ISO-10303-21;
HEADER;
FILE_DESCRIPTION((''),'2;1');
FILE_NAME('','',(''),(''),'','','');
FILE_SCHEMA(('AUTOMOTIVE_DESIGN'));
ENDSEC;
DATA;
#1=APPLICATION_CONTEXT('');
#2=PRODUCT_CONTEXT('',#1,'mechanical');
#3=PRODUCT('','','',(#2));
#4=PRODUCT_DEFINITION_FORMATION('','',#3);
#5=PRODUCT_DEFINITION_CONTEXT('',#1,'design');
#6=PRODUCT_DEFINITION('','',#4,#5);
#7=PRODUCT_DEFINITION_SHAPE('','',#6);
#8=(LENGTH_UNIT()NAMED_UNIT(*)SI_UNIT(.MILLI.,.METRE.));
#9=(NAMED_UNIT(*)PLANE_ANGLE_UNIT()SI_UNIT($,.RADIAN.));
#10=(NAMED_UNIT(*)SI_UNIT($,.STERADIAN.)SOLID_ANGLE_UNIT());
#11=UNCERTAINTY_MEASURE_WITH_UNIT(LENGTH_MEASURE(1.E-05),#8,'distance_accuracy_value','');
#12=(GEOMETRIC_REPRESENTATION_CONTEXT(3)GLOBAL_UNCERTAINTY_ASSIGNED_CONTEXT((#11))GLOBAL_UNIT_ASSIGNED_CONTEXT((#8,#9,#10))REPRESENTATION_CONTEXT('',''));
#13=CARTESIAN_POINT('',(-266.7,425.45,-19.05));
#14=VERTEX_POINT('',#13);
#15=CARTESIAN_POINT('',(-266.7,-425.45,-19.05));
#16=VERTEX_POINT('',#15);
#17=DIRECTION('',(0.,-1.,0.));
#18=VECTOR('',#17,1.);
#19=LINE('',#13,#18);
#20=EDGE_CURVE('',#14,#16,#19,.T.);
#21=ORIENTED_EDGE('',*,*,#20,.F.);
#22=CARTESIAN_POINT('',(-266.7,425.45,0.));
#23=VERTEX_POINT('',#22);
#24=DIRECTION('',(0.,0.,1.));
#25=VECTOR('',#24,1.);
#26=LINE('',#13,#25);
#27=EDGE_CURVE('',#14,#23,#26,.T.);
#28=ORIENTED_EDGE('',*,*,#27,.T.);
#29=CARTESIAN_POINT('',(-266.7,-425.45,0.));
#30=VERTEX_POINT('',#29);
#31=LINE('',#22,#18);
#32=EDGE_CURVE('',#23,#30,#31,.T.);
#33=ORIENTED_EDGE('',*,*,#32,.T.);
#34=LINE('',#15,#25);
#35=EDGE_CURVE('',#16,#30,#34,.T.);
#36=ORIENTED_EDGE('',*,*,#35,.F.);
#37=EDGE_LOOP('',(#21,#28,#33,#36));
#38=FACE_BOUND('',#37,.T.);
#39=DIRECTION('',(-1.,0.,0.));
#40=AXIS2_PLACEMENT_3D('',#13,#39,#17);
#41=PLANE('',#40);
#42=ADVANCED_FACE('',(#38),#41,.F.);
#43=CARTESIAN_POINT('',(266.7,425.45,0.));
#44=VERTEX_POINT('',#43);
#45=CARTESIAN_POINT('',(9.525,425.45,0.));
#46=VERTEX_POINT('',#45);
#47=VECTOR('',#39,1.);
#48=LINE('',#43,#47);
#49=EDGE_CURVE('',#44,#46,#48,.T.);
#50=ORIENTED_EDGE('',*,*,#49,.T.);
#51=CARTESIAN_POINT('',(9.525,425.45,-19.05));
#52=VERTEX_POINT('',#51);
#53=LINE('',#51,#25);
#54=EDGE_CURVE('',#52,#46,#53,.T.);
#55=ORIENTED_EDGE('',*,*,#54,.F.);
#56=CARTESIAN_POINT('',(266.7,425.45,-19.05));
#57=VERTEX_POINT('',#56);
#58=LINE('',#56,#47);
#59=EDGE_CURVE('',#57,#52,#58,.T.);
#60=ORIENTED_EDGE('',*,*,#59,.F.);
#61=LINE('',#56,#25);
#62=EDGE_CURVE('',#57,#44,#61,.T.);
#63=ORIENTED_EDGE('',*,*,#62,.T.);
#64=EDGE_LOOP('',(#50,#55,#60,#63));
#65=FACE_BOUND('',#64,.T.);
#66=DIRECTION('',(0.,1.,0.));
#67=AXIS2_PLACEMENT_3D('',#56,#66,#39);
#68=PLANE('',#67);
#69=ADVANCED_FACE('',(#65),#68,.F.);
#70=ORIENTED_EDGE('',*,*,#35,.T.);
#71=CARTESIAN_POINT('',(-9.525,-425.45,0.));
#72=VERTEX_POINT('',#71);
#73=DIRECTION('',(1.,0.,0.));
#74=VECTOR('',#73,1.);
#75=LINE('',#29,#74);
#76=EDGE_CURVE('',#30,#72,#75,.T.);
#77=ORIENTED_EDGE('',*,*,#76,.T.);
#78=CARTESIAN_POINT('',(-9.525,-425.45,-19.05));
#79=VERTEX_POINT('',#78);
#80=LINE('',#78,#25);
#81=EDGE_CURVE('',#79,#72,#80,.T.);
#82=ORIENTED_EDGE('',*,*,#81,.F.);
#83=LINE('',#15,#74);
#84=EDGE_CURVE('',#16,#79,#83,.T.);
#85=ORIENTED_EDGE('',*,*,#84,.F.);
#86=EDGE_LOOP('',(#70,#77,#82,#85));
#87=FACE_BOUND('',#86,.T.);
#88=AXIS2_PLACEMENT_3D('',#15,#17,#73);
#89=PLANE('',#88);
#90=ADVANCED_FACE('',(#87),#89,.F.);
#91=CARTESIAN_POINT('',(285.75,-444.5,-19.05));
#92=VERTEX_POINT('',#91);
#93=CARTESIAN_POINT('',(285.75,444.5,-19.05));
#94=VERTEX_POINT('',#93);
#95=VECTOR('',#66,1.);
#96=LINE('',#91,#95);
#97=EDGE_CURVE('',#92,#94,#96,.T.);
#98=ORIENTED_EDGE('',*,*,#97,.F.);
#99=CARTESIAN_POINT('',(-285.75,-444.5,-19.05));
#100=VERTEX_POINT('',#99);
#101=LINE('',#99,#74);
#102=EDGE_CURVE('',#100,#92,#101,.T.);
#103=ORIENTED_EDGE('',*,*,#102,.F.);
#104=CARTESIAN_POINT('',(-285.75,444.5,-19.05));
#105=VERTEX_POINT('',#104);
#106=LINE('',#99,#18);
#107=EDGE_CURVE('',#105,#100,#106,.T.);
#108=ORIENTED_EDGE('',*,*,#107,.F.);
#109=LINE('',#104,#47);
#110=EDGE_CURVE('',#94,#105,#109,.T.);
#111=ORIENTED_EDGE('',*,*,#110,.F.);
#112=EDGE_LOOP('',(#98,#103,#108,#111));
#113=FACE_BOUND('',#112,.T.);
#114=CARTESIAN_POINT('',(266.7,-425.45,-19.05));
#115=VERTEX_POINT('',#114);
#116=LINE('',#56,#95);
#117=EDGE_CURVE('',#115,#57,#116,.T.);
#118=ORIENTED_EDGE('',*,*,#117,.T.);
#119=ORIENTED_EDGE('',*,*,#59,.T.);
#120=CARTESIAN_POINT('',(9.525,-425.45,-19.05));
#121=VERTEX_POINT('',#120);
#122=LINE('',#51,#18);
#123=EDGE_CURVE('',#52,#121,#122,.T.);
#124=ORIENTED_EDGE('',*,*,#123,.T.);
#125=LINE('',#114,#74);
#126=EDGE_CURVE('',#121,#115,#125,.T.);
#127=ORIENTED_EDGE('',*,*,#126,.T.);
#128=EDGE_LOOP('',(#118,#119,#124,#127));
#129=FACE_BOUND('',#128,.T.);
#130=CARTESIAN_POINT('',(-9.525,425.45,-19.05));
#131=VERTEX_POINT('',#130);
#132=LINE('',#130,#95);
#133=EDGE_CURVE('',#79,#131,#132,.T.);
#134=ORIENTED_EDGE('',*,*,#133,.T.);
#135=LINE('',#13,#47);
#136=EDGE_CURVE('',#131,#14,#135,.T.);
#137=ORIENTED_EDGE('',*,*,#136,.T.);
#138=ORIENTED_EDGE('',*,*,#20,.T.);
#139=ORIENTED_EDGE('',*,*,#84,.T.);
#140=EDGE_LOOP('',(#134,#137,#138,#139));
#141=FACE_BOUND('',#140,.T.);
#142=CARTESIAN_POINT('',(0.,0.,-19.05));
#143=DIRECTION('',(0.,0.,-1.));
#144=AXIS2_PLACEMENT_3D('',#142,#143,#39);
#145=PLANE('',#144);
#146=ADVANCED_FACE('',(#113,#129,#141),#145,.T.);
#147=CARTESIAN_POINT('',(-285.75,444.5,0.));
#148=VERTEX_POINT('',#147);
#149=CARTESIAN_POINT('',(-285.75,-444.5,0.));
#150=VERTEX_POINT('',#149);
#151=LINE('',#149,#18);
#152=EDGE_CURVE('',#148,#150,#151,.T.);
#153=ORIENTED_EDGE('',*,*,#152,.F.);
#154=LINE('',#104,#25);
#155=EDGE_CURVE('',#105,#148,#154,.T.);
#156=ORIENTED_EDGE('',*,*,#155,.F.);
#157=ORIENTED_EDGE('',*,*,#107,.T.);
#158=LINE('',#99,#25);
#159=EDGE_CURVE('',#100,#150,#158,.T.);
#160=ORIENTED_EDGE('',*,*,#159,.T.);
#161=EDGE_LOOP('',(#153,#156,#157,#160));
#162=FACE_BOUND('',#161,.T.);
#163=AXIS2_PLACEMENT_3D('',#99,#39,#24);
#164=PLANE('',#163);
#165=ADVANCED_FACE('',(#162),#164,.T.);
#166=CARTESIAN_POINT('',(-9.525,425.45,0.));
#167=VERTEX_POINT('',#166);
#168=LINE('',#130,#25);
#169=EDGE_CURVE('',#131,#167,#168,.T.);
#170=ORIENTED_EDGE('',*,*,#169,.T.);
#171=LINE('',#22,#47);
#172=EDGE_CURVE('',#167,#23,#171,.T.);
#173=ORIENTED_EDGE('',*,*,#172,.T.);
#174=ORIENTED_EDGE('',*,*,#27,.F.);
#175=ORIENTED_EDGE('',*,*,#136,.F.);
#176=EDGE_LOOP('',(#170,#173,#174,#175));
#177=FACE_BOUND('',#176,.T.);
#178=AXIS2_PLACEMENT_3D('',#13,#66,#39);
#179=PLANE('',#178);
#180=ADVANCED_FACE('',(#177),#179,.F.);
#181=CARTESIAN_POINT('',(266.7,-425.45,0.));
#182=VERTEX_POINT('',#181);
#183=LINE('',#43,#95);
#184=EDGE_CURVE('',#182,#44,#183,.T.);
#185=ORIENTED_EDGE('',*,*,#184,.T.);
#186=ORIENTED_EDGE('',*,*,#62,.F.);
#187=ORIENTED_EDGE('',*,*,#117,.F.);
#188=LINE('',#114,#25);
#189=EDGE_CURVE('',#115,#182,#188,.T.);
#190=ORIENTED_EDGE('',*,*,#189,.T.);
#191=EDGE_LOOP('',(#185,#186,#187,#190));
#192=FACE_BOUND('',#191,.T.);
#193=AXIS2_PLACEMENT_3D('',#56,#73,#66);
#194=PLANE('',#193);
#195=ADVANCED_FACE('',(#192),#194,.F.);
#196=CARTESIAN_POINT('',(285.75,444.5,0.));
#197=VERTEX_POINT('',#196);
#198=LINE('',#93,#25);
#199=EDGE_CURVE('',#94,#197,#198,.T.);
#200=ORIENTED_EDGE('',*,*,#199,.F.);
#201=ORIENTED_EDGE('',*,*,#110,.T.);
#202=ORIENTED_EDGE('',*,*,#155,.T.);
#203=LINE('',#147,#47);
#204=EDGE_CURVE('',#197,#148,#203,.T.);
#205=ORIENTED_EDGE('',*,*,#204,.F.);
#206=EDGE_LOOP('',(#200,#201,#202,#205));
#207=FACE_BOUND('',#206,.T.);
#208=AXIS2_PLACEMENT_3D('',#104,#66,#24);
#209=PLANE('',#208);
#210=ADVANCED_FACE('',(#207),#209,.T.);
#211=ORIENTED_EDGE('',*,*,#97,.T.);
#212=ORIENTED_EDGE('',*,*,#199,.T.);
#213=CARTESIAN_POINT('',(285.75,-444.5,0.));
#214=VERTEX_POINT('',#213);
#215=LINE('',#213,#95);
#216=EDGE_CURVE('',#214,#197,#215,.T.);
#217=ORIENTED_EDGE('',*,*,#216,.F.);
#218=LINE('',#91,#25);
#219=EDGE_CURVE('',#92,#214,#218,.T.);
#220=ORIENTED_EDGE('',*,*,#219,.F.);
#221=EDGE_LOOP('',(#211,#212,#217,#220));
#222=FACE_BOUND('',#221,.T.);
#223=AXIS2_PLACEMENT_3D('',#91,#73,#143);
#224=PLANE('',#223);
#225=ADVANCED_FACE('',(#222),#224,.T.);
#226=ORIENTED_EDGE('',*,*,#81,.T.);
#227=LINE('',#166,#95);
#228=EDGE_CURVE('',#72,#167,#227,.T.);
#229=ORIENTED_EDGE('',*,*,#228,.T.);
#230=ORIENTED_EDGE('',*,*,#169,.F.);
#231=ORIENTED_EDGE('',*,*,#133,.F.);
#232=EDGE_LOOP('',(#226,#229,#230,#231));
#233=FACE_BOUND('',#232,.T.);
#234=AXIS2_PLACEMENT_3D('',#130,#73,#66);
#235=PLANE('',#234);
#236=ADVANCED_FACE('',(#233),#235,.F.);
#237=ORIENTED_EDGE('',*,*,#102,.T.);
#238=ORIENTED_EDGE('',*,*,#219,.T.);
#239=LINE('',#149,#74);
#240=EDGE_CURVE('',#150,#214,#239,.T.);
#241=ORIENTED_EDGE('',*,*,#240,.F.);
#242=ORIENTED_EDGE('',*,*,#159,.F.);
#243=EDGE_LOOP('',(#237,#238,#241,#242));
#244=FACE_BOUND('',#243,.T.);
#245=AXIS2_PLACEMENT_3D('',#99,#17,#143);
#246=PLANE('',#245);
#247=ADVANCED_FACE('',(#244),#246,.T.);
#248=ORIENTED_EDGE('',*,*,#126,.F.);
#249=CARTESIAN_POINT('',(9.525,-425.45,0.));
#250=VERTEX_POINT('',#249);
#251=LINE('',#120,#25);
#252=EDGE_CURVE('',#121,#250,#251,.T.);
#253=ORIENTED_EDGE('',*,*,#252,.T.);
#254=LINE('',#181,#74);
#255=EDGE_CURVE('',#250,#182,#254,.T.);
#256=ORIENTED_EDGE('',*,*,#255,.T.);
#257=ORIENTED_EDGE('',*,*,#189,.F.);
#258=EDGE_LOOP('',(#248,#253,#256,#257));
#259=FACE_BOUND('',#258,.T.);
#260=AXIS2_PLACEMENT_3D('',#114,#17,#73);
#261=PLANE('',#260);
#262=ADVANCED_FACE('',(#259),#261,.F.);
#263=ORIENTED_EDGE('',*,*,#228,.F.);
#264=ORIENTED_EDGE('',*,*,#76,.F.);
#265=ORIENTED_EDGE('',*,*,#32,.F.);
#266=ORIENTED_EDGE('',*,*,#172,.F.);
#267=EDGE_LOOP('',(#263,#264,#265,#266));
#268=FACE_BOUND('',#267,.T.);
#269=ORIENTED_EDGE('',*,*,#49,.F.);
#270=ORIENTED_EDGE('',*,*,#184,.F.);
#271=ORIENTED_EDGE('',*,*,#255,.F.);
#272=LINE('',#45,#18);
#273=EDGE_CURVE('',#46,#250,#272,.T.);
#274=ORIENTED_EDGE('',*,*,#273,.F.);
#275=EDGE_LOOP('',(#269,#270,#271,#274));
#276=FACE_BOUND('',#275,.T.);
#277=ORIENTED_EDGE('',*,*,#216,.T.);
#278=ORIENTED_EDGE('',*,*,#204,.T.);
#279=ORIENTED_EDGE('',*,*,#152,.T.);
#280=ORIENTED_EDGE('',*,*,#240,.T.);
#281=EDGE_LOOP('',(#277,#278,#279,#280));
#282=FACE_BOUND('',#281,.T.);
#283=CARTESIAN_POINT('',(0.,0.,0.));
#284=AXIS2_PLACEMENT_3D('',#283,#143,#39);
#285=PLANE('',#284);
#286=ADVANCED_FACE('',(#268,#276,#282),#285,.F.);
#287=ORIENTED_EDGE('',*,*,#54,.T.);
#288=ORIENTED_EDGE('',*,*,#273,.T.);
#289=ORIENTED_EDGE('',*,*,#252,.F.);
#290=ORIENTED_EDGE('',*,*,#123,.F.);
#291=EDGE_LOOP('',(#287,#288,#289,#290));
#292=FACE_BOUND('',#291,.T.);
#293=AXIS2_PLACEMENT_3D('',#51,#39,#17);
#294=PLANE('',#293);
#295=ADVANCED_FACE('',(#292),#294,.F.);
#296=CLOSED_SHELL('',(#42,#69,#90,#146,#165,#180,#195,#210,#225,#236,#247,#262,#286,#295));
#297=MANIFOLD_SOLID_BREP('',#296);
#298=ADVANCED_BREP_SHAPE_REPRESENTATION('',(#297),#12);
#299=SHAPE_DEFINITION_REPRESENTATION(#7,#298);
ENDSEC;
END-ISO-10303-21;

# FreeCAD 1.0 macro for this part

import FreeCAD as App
import Part
import Sketcher
Q = App.Units.Quantity


def add_polygon(sketch, points):
    """Adds a closed chain of lines whose ends are joined by coincident constraints."""
    first, n = sketch.GeometryCount, len(points)
    for a, b in zip(points, points[1:] + points[:1]):
        sketch.addGeometry(Part.LineSegment(App.Vector(*a, 0), App.Vector(*b, 0)), False)
    for i in range(n):
        sketch.addConstraint(Sketcher.Constraint("Coincident", first + i, 2, first + (i + 1) % n, 1))

doc = App.newDocument("Part")
body = doc.addObject("PartDesign::Body", "Body")

sketch1 = body.newObject("Sketcher::SketchObject", "Sketch")
sketch1.AttachmentSupport = (doc.getObject("XY_Plane"), [""])
sketch1.MapMode = "FlatFace"
add_polygon(sketch1, [(-285.75, 444.5), (-285.75, -444.5), (285.75, -444.5), (285.75, 444.5)])
sketch1.addConstraint([
    Sketcher.Constraint("Vertical", 0),
    Sketcher.Constraint("Horizontal", 1),
    Sketcher.Constraint("Vertical", 2),
    Sketcher.Constraint("Horizontal", 3),
    Sketcher.Constraint("Symmetric", 0, 2, 2, 2, -1, 1),
    Sketcher.Constraint("DistanceY", 0, 2, 0, 1, Q("35 in")),
    Sketcher.Constraint("DistanceX", 1, 1, 1, 2, Q("22.5 in")),
])
pad1 = body.newObject("PartDesign::Pad", "Pad")
pad1.Profile = sketch1
pad1.Length = Q("0.75 in")
pad1.Reversed = True

sketch2 = body.newObject("Sketcher::SketchObject", "Sketch001")
sketch2.AttachmentSupport = (doc.getObject("XY_Plane"), [""])
sketch2.MapMode = "FlatFace"
add_polygon(sketch2, [(-266.7, 425.45), (-266.7, -425.45), (-9.525, -425.45), (-9.525, 425.45)])
add_polygon(sketch2, [(9.525, 425.45), (9.525, -425.45), (266.7, -425.45), (266.7, 425.45)])
sketch2.addConstraint([
    Sketcher.Constraint("Vertical", 0),
    Sketcher.Constraint("Horizontal", 1),
    Sketcher.Constraint("Vertical", 2),
    Sketcher.Constraint("Horizontal", 3),
    Sketcher.Constraint("Vertical", 4),
    Sketcher.Constraint("Horizontal", 5),
    Sketcher.Constraint("Vertical", 6),
    Sketcher.Constraint("Horizontal", 7),
    Sketcher.Constraint("Symmetric", 2, 2, 4, 2, -1, 1),
    Sketcher.Constraint("Symmetric", 0, 2, 6, 2, -1, 1),
    Sketcher.Constraint("Horizontal", 1, 2, 4, 2),
    Sketcher.Constraint("DistanceY", 0, 2, 0, 1, Q("33.5 in")),
    Sketcher.Constraint("DistanceX", 0, 2, 5, 2, Q("21 in")),
    Sketcher.Constraint("DistanceX", 1, 1, 1, 2, Q("10.125 in")),
])
pocket1 = body.newObject("PartDesign::Pocket", "Pocket")
pocket1.Profile = sketch2
pocket1.Type = "ThroughAll"

doc.recompute()
